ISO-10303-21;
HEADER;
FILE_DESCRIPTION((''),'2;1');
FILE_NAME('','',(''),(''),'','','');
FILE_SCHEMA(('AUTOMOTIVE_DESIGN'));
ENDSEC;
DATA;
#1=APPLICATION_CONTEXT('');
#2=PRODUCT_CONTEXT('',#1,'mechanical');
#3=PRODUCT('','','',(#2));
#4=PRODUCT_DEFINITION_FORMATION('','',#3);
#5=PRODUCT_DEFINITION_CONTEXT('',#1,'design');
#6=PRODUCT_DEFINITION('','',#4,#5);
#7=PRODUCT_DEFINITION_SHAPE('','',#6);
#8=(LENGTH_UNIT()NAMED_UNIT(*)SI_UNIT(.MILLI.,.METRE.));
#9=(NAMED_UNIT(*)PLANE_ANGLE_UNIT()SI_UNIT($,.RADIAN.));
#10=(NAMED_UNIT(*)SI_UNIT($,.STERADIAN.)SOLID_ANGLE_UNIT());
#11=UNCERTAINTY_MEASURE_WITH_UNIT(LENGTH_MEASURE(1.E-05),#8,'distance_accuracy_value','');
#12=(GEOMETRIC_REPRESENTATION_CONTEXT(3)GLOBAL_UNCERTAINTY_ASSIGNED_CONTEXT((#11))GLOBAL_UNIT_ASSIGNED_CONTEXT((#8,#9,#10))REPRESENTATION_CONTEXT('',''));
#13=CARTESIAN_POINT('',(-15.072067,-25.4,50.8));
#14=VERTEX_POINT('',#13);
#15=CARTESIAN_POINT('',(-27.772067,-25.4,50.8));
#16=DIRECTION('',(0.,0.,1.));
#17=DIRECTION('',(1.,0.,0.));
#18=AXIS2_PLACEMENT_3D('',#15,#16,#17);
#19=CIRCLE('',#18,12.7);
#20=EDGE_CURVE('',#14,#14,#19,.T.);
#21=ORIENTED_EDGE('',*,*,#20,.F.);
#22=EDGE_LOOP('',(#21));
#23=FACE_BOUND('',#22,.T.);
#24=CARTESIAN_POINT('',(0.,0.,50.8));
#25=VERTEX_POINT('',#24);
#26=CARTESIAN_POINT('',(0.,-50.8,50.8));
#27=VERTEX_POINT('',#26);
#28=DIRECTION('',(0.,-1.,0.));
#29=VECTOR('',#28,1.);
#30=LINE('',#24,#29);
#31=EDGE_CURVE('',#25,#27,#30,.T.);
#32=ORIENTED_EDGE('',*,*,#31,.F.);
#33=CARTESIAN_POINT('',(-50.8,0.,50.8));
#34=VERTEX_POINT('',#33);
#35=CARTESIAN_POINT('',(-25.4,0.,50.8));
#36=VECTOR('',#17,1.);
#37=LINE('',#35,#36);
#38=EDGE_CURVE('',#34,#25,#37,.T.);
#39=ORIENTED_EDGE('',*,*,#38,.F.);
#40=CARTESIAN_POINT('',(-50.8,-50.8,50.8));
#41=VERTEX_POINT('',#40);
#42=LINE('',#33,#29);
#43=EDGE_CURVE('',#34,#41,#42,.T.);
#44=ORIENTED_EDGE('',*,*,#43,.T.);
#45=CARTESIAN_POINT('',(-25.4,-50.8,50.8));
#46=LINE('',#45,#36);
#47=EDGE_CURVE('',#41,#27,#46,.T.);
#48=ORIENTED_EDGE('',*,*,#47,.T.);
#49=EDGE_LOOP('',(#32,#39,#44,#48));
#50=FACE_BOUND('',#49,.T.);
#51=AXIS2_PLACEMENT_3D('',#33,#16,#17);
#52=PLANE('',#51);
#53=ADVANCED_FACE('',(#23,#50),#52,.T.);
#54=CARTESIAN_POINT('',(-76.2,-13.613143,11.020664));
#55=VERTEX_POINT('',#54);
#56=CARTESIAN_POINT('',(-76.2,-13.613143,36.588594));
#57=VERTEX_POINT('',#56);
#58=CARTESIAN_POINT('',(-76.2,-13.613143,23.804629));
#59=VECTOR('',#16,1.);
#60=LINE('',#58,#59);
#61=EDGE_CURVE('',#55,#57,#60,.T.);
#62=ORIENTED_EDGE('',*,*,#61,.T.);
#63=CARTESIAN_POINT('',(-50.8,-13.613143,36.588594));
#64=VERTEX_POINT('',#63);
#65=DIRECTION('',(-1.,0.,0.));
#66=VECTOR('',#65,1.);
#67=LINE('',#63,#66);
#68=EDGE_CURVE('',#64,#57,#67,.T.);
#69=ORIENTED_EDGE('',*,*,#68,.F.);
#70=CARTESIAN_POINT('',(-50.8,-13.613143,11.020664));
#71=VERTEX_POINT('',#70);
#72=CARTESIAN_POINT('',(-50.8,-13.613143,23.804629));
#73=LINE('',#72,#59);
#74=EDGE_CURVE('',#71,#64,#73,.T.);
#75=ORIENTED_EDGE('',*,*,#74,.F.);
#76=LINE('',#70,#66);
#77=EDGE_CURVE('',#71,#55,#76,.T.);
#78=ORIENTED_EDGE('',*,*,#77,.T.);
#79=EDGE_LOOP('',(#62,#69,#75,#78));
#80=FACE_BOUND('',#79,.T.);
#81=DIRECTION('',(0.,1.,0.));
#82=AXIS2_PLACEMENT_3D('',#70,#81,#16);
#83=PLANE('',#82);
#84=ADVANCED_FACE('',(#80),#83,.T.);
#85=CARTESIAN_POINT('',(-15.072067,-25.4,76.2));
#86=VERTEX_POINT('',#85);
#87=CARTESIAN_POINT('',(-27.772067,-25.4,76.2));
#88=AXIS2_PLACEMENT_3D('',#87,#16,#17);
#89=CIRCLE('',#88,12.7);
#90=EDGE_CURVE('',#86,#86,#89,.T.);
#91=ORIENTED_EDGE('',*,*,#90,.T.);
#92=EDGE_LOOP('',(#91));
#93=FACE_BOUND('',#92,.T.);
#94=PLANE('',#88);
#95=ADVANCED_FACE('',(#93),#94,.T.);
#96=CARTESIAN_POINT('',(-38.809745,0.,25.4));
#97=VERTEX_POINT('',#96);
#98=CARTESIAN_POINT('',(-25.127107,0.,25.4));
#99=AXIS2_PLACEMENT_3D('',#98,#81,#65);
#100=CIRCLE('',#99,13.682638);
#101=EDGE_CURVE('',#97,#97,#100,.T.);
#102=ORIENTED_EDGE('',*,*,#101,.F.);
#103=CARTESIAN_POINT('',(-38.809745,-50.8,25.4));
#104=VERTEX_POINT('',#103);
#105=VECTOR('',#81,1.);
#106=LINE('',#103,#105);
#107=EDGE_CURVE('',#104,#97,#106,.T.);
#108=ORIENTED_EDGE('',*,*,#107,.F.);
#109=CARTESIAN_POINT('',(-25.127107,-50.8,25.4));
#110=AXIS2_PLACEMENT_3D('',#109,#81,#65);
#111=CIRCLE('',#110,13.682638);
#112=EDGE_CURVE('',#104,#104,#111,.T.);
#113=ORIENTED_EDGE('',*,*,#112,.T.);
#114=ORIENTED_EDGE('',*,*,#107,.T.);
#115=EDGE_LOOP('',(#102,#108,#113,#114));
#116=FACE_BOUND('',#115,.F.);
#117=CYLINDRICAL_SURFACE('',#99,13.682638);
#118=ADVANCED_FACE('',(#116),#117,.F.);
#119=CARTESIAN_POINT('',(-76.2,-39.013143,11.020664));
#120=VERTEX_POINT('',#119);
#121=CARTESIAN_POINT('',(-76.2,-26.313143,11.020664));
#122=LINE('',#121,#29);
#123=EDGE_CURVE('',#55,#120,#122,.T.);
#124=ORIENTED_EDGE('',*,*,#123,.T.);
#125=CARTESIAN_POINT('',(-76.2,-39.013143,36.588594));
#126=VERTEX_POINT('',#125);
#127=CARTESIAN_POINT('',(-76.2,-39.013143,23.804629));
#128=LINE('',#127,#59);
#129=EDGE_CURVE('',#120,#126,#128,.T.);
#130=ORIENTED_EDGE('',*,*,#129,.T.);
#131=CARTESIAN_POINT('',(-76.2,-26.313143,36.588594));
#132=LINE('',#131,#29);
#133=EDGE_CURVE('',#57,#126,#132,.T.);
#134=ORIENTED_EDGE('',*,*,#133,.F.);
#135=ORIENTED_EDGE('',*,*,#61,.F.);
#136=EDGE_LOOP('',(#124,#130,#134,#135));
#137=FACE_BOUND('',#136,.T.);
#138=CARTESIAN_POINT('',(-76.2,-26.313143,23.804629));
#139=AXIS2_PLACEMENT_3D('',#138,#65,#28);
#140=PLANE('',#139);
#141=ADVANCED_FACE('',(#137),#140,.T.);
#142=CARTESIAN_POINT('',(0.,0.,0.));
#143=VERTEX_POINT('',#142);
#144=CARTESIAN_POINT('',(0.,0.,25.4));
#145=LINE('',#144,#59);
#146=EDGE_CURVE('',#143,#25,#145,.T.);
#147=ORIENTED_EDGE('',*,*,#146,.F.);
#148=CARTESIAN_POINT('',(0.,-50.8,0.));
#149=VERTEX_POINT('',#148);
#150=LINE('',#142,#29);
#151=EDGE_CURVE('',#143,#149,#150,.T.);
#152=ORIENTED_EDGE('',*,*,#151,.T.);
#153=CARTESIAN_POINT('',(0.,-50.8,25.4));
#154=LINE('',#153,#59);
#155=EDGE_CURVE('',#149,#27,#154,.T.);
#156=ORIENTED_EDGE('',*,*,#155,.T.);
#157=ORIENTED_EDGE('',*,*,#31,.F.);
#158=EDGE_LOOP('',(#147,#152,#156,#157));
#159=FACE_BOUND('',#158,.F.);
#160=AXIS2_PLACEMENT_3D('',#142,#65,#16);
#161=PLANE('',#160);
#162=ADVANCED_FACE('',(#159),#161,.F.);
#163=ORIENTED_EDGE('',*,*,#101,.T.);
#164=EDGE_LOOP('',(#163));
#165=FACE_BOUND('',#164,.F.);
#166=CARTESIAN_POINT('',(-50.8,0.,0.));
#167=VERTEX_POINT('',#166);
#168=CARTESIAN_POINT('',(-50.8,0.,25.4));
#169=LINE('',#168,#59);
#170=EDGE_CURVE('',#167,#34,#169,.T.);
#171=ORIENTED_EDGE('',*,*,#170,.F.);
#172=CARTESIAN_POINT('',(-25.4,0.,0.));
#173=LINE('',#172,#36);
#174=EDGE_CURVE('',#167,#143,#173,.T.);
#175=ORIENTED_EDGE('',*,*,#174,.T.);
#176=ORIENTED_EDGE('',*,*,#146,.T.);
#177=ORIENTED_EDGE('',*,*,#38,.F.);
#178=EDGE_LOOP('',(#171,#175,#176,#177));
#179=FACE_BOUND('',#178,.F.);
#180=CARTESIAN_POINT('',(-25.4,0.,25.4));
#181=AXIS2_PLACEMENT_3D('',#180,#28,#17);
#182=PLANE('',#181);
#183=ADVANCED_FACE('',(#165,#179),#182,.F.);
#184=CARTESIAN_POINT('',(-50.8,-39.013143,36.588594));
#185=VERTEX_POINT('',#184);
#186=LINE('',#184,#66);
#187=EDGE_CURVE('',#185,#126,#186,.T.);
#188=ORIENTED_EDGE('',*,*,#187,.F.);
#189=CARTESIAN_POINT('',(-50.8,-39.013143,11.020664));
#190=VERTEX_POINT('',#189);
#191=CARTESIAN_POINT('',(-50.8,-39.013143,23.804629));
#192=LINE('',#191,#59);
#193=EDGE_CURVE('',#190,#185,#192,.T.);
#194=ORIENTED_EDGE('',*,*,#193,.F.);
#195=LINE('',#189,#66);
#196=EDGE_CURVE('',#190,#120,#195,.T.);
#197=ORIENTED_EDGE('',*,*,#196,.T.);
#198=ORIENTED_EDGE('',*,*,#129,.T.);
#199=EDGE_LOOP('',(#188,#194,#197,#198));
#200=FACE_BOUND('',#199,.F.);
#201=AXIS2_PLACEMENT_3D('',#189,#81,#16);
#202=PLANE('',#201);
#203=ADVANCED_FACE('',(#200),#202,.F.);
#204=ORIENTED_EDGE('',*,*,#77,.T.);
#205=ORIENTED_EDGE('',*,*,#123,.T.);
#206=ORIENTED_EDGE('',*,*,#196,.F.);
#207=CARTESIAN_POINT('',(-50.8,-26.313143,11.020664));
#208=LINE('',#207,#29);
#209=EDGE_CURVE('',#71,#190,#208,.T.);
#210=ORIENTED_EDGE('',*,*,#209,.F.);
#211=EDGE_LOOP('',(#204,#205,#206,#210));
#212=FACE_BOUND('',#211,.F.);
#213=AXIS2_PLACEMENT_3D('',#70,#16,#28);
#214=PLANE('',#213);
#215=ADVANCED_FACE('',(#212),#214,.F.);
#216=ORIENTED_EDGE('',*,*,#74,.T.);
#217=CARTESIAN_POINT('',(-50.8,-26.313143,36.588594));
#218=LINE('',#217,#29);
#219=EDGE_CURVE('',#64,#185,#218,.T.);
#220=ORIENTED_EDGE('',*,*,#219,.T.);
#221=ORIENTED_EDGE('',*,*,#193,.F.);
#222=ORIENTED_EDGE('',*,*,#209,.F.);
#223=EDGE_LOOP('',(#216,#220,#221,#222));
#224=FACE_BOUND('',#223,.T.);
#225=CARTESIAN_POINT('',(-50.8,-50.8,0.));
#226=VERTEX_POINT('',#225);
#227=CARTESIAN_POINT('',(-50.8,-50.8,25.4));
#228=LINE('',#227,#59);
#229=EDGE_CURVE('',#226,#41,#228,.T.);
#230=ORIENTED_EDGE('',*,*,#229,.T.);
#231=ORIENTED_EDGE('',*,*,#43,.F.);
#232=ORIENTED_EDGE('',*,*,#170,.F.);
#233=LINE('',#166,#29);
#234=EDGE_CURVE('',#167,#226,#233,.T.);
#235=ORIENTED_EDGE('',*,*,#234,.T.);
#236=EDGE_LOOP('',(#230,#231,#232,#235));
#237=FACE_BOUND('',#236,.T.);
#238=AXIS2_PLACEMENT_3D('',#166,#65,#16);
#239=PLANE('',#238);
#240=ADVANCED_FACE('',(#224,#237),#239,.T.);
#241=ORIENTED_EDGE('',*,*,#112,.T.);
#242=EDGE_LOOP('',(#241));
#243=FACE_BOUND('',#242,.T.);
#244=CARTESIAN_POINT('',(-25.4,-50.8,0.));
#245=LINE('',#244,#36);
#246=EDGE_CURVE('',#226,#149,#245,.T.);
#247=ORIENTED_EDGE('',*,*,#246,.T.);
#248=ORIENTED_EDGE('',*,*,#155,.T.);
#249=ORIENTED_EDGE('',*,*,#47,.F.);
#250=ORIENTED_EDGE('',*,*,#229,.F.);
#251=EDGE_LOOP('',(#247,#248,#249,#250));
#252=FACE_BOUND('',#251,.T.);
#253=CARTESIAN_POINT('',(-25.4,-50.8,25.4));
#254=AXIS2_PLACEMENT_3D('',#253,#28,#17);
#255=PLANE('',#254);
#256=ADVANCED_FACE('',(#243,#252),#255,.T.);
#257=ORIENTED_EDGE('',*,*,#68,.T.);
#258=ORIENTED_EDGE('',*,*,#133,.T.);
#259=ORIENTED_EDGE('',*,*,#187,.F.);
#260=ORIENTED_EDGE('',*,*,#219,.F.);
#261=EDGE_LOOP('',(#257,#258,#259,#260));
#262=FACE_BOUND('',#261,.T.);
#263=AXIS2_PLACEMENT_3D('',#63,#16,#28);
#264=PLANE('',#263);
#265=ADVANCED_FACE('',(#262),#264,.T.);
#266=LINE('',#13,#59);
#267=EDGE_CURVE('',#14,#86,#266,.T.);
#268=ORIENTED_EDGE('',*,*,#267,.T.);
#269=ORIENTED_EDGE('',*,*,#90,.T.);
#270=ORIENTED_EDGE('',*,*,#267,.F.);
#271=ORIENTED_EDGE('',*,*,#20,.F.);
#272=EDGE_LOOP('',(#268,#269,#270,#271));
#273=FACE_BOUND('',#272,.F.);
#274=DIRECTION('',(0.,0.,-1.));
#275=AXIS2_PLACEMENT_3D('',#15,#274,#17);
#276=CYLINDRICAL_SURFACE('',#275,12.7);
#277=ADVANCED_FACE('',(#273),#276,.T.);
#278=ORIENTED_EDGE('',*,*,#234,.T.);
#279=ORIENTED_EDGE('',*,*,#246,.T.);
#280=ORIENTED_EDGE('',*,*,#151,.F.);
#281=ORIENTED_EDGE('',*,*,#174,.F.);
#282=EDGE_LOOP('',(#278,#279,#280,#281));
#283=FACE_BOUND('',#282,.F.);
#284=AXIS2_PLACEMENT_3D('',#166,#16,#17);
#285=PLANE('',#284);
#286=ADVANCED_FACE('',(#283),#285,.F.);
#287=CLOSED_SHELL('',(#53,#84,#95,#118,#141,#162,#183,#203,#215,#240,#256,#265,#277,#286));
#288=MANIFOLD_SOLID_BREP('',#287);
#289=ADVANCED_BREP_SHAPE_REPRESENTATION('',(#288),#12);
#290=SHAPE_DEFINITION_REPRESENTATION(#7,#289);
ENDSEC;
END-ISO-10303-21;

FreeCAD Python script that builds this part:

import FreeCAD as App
import Part
import Sketcher
from FreeCAD import Vector
Q = App.Units.Quantity


def add_polygon(sketch, points):
    """Adds a closed chain of lines whose ends are joined by coincident constraints."""
    first, n = sketch.GeometryCount, len(points)
    for a, b in zip(points, points[1:] + points[:1]):
        sketch.addGeometry(Part.LineSegment(App.Vector(*a, 0), App.Vector(*b, 0)), False)
    for i in range(n):
        sketch.addConstraint(Sketcher.Constraint("Coincident", first + i, 2, first + (i + 1) % n, 1))

doc = App.newDocument("Part")
body = doc.addObject("PartDesign::Body", "Body")

sketch1 = doc.addObject("Sketcher::SketchObject", "Sketch")
body.addObject(sketch1)
sketch1.AttachmentSupport = (doc.XZ_Plane, [""])
sketch1.MapMode = "FlatFace"
add_polygon(sketch1, [(-51, 51), (-51, 0), (0, 0), (0, 51)])
sketch1.addConstraint(Sketcher.Constraint("Vertical", 0))
sketch1.addConstraint(Sketcher.Constraint("Horizontal", 1))
sketch1.addConstraint(Sketcher.Constraint("Vertical", 2))
sketch1.addConstraint(Sketcher.Constraint("Horizontal", 3))
sketch1.addConstraint(Sketcher.Constraint("Coincident", 1, 2, -1, 1))
sketch1.addConstraint(Sketcher.Constraint("Equal", 3, 0))
sketch1.addConstraint(Sketcher.Constraint("DistanceX", 1, 1, 1, 2, Q("2 in")))
pad1 = doc.addObject("PartDesign::Pad", "Pad")
body.addObject(pad1)
pad1.Profile = sketch1
pad1.Length = Q("2 in")

sketch2 = doc.addObject("Sketcher::SketchObject", "Sketch001")
body.addObject(sketch2)
sketch2.AttachmentSupport = (doc.XZ_Plane, [""])
sketch2.MapMode = "FlatFace"
sketch2.addGeometry(Part.Circle(Vector(-25, 25, 0), Vector(0, 0, 1), 14), False)
sketch2.addConstraint(Sketcher.Constraint("DistanceY", -1, 1, 0, 3, Q("1 in")))
sketch2.addConstraint(Sketcher.Constraint("Diameter", 0, Q("27.365276 mm")))
sketch2.addConstraint(Sketcher.Constraint("DistanceX", 0, 3, -1, 1, Q("25.127107 mm")))
pocket1 = doc.addObject("PartDesign::Pocket", "Pocket")
body.addObject(pocket1)
pocket1.Profile = sketch2
pocket1.Length = Q("1 in")
pocket1.Reversed = True

sketch3 = doc.addObject("Sketcher::SketchObject", "Sketch002")
body.addObject(sketch3)
sketch3.AttachmentSupport = (doc.XZ_Plane, [""])
sketch3.MapMode = "FlatFace"
sketch3.AttachmentOffset = App.Placement(Vector(0, 0, 1 * 25.4), App.Rotation())
sketch3.addGeometry(Part.Circle(Vector(-25, 25, 0), Vector(0, 0, 1), 14), False)
sketch3.addConstraint(Sketcher.Constraint("DistanceY", -1, 1, 0, 3, Q("1 in")))
sketch3.addConstraint(Sketcher.Constraint("Diameter", 0, Q("27.365276 mm")))
sketch3.addConstraint(Sketcher.Constraint("DistanceX", 0, 3, -1, 1, Q("25.127107 mm")))
pocket2 = doc.addObject("PartDesign::Pocket", "Pocket001")
body.addObject(pocket2)
pocket2.Profile = sketch3
pocket2.Length = Q("1 in")
pocket2.Reversed = True

sketch4 = doc.addObject("Sketcher::SketchObject", "Sketch003")
body.addObject(sketch4)
sketch4.AttachmentSupport = (doc.YZ_Plane, [""])
sketch4.MapMode = "FlatFace"
sketch4.AttachmentOffset = App.Placement(Vector(0, 0, -2 * 25.4), App.Rotation())
add_polygon(sketch4, [(-14, 37), (-14, 11), (-39, 11), (-39, 37)])
sketch4.addConstraint(Sketcher.Constraint("Vertical", 0))
sketch4.addConstraint(Sketcher.Constraint("Horizontal", 1))
sketch4.addConstraint(Sketcher.Constraint("Vertical", 2))
sketch4.addConstraint(Sketcher.Constraint("Horizontal", 3))
sketch4.addConstraint(Sketcher.Constraint("DistanceX", 1, 2, 1, 1, Q("1 in")))
sketch4.addConstraint(Sketcher.Constraint("DistanceY", 0, 2, 0, 1, Q("25.56793 mm")))
sketch4.addConstraint(Sketcher.Constraint("DistanceX", 0, 2, -1, 1, Q("13.613143 mm")))
sketch4.addConstraint(Sketcher.Constraint("DistanceY", -1, 1, 0, 2, Q("11.020664 mm")))
pad2 = doc.addObject("PartDesign::Pad", "Pad001")
body.addObject(pad2)
pad2.Profile = sketch4
pad2.Length = Q("1 in")
pad2.Reversed = True

sketch5 = doc.addObject("Sketcher::SketchObject", "Sketch004")
body.addObject(sketch5)
sketch5.AttachmentSupport = (doc.XY_Plane, [""])
sketch5.MapMode = "FlatFace"
sketch5.AttachmentOffset = App.Placement(Vector(0, 0, 2 * 25.4), App.Rotation())
sketch5.addGeometry(Part.Circle(Vector(-28, -25, 0), Vector(0, 0, 1), 13), False)
sketch5.addConstraint(Sketcher.Constraint("Diameter", 0, Q("1 in")))
sketch5.addConstraint(Sketcher.Constraint("DistanceY", 0, 3, -1, 1, Q("1 in")))
sketch5.addConstraint(Sketcher.Constraint("DistanceX", 0, 3, -1, 1, Q("27.772067 mm")))
pad3 = doc.addObject("PartDesign::Pad", "Pad002")
body.addObject(pad3)
pad3.Profile = sketch5
pad3.Length = Q("1 in")

doc.recompute()
